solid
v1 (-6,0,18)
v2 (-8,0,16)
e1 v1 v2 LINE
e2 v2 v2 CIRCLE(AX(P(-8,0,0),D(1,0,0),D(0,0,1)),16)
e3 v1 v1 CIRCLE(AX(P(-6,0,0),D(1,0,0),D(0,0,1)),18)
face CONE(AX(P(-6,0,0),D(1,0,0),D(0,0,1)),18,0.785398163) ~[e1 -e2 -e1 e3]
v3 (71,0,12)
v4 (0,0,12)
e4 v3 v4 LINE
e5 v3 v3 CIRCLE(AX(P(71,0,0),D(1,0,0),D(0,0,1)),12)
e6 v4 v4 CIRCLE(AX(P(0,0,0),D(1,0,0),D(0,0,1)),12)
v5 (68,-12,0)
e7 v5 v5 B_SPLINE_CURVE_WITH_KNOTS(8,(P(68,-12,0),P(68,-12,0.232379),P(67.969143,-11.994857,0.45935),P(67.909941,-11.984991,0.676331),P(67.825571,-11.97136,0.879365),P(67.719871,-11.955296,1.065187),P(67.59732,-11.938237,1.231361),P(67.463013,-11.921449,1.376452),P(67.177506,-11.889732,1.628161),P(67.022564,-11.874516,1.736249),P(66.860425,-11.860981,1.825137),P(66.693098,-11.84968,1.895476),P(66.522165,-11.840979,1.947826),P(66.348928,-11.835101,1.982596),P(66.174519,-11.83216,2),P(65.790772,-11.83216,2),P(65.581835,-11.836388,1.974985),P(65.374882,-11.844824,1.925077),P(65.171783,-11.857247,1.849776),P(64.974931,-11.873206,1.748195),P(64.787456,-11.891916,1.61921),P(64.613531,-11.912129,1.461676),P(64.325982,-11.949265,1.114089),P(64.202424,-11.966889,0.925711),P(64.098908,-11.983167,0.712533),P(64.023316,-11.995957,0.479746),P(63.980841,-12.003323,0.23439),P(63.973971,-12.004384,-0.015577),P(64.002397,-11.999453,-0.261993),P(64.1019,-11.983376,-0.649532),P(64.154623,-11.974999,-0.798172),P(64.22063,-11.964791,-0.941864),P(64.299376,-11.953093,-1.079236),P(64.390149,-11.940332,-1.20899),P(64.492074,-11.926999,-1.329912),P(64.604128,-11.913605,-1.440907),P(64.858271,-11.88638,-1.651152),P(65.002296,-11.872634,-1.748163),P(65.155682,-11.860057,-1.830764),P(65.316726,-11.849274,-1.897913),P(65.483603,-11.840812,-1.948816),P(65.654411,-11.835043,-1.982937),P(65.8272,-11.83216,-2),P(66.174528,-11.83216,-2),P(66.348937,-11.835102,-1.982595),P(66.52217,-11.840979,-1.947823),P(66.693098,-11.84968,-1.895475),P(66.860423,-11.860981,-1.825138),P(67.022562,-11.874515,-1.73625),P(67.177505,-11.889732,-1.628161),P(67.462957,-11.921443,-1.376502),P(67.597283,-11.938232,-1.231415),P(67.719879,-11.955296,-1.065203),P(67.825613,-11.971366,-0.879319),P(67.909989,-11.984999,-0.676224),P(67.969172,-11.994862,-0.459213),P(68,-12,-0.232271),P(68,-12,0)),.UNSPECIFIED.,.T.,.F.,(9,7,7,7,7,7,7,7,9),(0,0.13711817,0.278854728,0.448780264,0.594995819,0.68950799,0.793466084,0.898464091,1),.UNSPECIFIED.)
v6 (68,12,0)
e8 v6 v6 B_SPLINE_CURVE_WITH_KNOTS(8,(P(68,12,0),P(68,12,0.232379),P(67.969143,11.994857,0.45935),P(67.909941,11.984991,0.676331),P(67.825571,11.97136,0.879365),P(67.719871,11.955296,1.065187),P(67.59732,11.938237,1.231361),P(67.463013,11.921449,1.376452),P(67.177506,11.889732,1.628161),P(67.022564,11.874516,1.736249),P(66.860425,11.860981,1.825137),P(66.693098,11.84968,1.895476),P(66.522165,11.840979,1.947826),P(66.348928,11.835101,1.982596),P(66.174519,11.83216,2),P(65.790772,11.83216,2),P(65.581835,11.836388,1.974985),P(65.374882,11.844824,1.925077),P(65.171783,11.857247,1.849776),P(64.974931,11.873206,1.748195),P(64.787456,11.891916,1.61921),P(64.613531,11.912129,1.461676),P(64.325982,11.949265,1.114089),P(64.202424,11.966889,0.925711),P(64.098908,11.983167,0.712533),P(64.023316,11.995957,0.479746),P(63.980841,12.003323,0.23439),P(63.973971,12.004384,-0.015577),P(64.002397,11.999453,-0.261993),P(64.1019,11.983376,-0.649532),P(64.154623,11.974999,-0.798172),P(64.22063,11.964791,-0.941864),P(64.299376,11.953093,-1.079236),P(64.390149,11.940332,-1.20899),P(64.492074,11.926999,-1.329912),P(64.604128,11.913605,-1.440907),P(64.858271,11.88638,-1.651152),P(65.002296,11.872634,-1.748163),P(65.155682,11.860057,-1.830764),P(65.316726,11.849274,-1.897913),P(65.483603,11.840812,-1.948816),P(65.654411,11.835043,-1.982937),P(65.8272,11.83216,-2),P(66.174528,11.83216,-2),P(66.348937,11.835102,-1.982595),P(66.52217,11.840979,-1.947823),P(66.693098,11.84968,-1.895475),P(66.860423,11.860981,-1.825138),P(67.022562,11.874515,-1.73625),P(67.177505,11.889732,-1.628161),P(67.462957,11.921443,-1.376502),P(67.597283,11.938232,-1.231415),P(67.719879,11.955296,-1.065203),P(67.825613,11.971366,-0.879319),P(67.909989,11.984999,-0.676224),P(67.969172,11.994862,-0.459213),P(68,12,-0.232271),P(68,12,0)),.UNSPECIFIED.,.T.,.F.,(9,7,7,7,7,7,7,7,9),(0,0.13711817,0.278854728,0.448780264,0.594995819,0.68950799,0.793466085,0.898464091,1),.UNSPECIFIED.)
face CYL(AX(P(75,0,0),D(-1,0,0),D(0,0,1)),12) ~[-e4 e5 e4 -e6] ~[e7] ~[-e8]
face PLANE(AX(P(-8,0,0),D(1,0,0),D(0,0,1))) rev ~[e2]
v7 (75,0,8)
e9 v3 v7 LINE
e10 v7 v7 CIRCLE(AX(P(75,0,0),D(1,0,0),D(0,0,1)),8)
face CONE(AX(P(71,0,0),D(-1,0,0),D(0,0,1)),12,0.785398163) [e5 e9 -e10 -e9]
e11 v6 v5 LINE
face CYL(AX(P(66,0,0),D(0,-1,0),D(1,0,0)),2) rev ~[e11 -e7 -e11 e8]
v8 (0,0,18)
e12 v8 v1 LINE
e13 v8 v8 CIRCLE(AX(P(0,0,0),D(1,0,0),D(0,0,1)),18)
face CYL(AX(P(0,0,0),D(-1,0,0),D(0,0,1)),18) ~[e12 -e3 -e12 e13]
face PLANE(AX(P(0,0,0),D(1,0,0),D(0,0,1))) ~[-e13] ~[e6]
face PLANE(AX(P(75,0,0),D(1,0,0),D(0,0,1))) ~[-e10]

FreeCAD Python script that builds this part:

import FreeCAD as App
import Part
import Sketcher
from FreeCAD import Vector


def edges_at(feature, points):
    """Names of the edges that pass closest to the given points."""
    edges = feature.Shape.Edges
    near = lambda p: min(range(len(edges)), key=lambda i: edges[i].distToShape(Part.Vertex(*p))[0])
    return sorted({f"Edge{near(p) + 1}" for p in points})


def add_polygon(sketch, points):
    """Adds a closed chain of lines whose ends are joined by coincident constraints."""
    first, n = sketch.GeometryCount, len(points)
    for a, b in zip(points, points[1:] + points[:1]):
        sketch.addGeometry(Part.LineSegment(App.Vector(*a, 0), App.Vector(*b, 0)), False)
    for i in range(n):
        sketch.addConstraint(Sketcher.Constraint("Coincident", first + i, 2, first + (i + 1) % n, 1))

doc = App.newDocument("Part")
body = doc.addObject("PartDesign::Body", "Body")

sketch1 = doc.addObject("Sketcher::SketchObject", "Sketch")
body.addObject(sketch1)
sketch1.AttachmentSupport = (doc.XZ_Plane, [""])
sketch1.MapMode = "FlatFace"
add_polygon(sketch1, [(75, 12), (0, 12), (0, 18), (-8, 18), (-8, 0), (75, 0)])
sketch1.addConstraint(Sketcher.Constraint("Horizontal", 0))
sketch1.addConstraint(Sketcher.Constraint("Vertical", 1))
sketch1.addConstraint(Sketcher.Constraint("Horizontal", 2))
sketch1.addConstraint(Sketcher.Constraint("Vertical", 3))
sketch1.addConstraint(Sketcher.Constraint("Horizontal", 4))
sketch1.addConstraint(Sketcher.Constraint("Vertical", 5))
sketch1.addConstraint(Sketcher.Constraint("PointOnObject", 0, 2, -2))
sketch1.addConstraint(Sketcher.Constraint("PointOnObject", 3, 2, -1))
sketch1.addConstraint(Sketcher.Constraint("DistanceX", 0, 2, 0, 1, 75.0))
sketch1.addConstraint(Sketcher.Constraint("DistanceX", 2, 2, 2, 1, 8.0))
sketch1.addConstraint(Sketcher.Constraint("DistanceY", 1, 1, 1, 2, 6.0))
sketch1.addConstraint(Sketcher.Constraint("DistanceY", 3, 2, 3, 1, 18.0))
revolution = doc.addObject("PartDesign::Revolution", "Revolution")
body.addObject(revolution)
revolution.Profile = sketch1
revolution.ReferenceAxis = (sketch1, ["H_Axis"])
revolution.Angle = 360
doc.recompute()

chamfer = doc.addObject("PartDesign::Chamfer", "Chamfer")
body.addObject(chamfer)
chamfer.Base = (revolution, edges_at(revolution, [(75, 0, -12)]))
chamfer.Size = 4
doc.recompute()

chamfer2 = doc.addObject("PartDesign::Chamfer", "Chamfer001")
body.addObject(chamfer2)
chamfer2.Base = (chamfer, edges_at(chamfer, [(-8, 0, -18)]))
chamfer2.Size = 2

sketch2 = doc.addObject("Sketcher::SketchObject", "Sketch001")
body.addObject(sketch2)
sketch2.AttachmentSupport = (doc.XZ_Plane, [""])
sketch2.MapMode = "FlatFace"
sketch2.addGeometry(Part.Circle(Vector(66, 0, 0), Vector(0, 0, 1), 2), False)
sketch2.addConstraint(Sketcher.Constraint("PointOnObject", 0, 3, -1))
sketch2.addConstraint(Sketcher.Constraint("Diameter", 0, 4.0))
sketch2.addConstraint(Sketcher.Constraint("DistanceX", -1, 1, 0, 3, 66.0))
pocket1 = doc.addObject("PartDesign::Pocket", "Pocket")
body.addObject(pocket1)
pocket1.Profile = sketch2
pocket1.Length = 25
pocket1.Midplane = True

doc.recompute()
